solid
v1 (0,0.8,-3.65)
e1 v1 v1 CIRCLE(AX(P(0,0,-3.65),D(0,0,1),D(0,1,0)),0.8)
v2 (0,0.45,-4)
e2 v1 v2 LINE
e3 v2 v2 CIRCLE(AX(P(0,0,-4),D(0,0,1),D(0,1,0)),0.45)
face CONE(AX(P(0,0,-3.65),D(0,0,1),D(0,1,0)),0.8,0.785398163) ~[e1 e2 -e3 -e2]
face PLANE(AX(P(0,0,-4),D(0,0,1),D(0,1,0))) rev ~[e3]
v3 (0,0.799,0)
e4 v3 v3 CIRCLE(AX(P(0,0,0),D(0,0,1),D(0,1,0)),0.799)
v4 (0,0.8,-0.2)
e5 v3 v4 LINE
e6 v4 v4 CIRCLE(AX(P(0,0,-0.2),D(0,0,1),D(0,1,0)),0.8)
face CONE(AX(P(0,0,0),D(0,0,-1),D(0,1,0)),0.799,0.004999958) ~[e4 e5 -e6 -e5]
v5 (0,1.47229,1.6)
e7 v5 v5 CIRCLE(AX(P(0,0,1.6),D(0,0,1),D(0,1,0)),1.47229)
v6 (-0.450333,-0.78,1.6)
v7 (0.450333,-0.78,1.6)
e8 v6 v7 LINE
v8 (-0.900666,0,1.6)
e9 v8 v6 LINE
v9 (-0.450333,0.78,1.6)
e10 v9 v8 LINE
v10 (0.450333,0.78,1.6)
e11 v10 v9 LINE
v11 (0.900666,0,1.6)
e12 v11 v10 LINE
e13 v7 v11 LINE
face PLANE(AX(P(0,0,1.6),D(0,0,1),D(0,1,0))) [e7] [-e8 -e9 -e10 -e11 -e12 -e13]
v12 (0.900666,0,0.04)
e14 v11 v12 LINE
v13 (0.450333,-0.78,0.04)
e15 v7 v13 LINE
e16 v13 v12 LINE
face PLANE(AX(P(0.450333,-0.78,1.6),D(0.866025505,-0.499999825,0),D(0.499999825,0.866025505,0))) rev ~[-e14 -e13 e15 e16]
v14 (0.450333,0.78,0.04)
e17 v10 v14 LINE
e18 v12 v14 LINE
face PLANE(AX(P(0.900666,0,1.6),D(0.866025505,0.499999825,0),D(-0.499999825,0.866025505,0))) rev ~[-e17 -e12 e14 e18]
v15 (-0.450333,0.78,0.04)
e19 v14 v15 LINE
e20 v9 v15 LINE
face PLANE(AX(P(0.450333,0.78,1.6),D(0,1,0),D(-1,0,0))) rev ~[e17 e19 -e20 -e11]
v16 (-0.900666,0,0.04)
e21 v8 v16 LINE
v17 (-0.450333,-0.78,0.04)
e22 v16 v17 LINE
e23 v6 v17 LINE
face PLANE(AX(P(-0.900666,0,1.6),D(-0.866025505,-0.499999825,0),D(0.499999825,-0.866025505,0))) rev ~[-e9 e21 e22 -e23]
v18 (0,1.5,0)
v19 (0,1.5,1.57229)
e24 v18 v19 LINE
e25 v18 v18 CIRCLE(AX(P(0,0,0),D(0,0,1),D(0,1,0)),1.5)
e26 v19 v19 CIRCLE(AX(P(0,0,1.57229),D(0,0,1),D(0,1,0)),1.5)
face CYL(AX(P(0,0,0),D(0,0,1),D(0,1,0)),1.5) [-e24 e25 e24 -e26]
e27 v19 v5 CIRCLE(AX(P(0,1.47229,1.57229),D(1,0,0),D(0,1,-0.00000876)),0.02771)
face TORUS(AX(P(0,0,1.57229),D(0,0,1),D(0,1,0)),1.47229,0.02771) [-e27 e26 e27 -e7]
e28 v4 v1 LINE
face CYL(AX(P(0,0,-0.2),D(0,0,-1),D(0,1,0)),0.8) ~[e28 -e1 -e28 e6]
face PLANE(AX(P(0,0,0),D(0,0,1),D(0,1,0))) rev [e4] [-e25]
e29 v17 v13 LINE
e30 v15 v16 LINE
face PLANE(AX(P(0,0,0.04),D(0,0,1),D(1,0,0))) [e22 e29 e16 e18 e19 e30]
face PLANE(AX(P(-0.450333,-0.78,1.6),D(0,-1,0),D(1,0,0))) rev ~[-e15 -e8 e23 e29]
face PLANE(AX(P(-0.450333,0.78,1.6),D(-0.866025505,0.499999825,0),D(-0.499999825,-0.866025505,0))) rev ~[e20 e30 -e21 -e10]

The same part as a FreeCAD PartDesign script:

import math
import FreeCAD as App
import Part
import Sketcher
Q = App.Units.Quantity

doc = App.newDocument("Part")
body = doc.addObject("PartDesign::Body", "Body")

sketch1 = body.newObject("Sketcher::SketchObject", "Sketch")
sketch1.AttachmentSupport = (doc.getObject("YZ_Plane"), [""])
sketch1.MapMode = "FlatFace"
sketch1.addGeometry(Part.LineSegment(App.Vector(0.799, 0, 0), App.Vector(1.5, 0, 0)), False)
sketch1.addGeometry(Part.LineSegment(App.Vector(1.5, 0, 0), App.Vector(1.5, 1.57229, 0)), False)
sketch1.addGeometry(Part.ArcOfCircle(Part.Circle(App.Vector(1.47229, 1.57229, 0), App.Vector(0, 0, 1), 0.02771), math.radians(-0.000502), math.radians(90.000502)), False)
sketch1.addGeometry(Part.LineSegment(App.Vector(1.47229, 1.6, 0), App.Vector(0, 1.6, 0)), False)
sketch1.addGeometry(Part.LineSegment(App.Vector(0, 1.6, 0), App.Vector(0, -4, 0)), False)
sketch1.addGeometry(Part.LineSegment(App.Vector(0, -4, 0), App.Vector(0.45, -4, 0)), False)
sketch1.addGeometry(Part.LineSegment(App.Vector(0.45, -4, 0), App.Vector(0.8, -3.65, 0)), False)
sketch1.addGeometry(Part.LineSegment(App.Vector(0.8, -3.65, 0), App.Vector(0.8, -0.2, 0)), False)
sketch1.addGeometry(Part.LineSegment(App.Vector(0.8, -0.2, 0), App.Vector(0.799, 0, 0)), False)
sketch1.addConstraint(Sketcher.Constraint("Coincident", 0, 2, 1, 1))
sketch1.addConstraint(Sketcher.Constraint("Coincident", 1, 2, 2, 1))
sketch1.addConstraint(Sketcher.Constraint("Coincident", 2, 2, 3, 1))
sketch1.addConstraint(Sketcher.Constraint("Coincident", 3, 2, 4, 1))
sketch1.addConstraint(Sketcher.Constraint("Coincident", 4, 2, 5, 1))
sketch1.addConstraint(Sketcher.Constraint("Coincident", 5, 2, 6, 1))
sketch1.addConstraint(Sketcher.Constraint("Coincident", 6, 2, 7, 1))
sketch1.addConstraint(Sketcher.Constraint("Coincident", 7, 2, 8, 1))
sketch1.addConstraint(Sketcher.Constraint("Coincident", 8, 2, 0, 1))
sketch1.addConstraint(Sketcher.Constraint("Horizontal", 0))
sketch1.addConstraint(Sketcher.Constraint("Vertical", 1))
sketch1.addConstraint(Sketcher.Constraint("Horizontal", 3))
sketch1.addConstraint(Sketcher.Constraint("Vertical", 4))
sketch1.addConstraint(Sketcher.Constraint("Horizontal", 5))
sketch1.addConstraint(Sketcher.Constraint("Vertical", 7))
sketch1.addConstraint(Sketcher.Constraint("PointOnObject", 0, 2, -1))
sketch1.addConstraint(Sketcher.Constraint("PointOnObject", 3, 2, -2))
sketch1.addConstraint(Sketcher.Constraint("Horizontal", 2, 3, 1, 2))
sketch1.addConstraint(Sketcher.Constraint("Angle", 6, Q("45 deg")))
sketch1.addConstraint(Sketcher.Constraint("DistanceY", 4, 2, 4, 1, 5.6))
sketch1.addConstraint(Sketcher.Constraint("DistanceY", 4, 2, -1, 1, 4.0))
sketch1.addConstraint(Sketcher.Constraint("DistanceX", 5, 1, 5, 2, 0.45))
sketch1.addConstraint(Sketcher.Constraint("DistanceY", 7, 1, 7, 2, 3.45))
sketch1.addConstraint(Sketcher.Constraint("DistanceX", -1, 1, 0, 2, 1.5))
sketch1.addConstraint(Sketcher.Constraint("DistanceX", -1, 1, 6, 2, 0.8))
sketch1.addConstraint(Sketcher.Constraint("DistanceX", 0, 1, 0, 2, 0.701))
sketch1.addConstraint(Sketcher.Constraint("Radius", 2, 0.02771))
sketch1.addConstraint(Sketcher.Constraint("DistanceX", 3, 2, 3, 1, 1.47229))
revolution = body.newObject("PartDesign::Revolution", "Revolution")
revolution.Profile = sketch1
revolution.ReferenceAxis = (sketch1, ["V_Axis"])
revolution.Angle = 360

sketch2 = body.newObject("Sketcher::SketchObject", "Sketch001")
sketch2.AttachmentSupport = (doc.getObject("XY_Plane"), [""])
sketch2.MapMode = "FlatFace"
sketch2.AttachmentOffset = App.Placement(App.Vector(0, 0, 1.6), App.Rotation())
sketch2.addGeometry(Part.LineSegment(App.Vector(0.900666, 0, 0), App.Vector(0.450333, 0.78, 0)), False)
sketch2.addGeometry(Part.LineSegment(App.Vector(0.450333, 0.78, 0), App.Vector(-0.450333, 0.78, 0)), False)
sketch2.addGeometry(Part.LineSegment(App.Vector(-0.450333, 0.78, 0), App.Vector(-0.900666, 0, 0)), False)
sketch2.addGeometry(Part.LineSegment(App.Vector(-0.900666, 0, 0), App.Vector(-0.450333, -0.78, 0)), False)
sketch2.addGeometry(Part.LineSegment(App.Vector(-0.450333, -0.78, 0), App.Vector(0.450333, -0.78, 0)), False)
sketch2.addGeometry(Part.LineSegment(App.Vector(0.450333, -0.78, 0), App.Vector(0.900666, 0, 0)), False)
sketch2.addConstraint(Sketcher.Constraint("Coincident", 0, 2, 1, 1))
sketch2.addConstraint(Sketcher.Constraint("Coincident", 1, 2, 2, 1))
sketch2.addConstraint(Sketcher.Constraint("Coincident", 2, 2, 3, 1))
sketch2.addConstraint(Sketcher.Constraint("Coincident", 3, 2, 4, 1))
sketch2.addConstraint(Sketcher.Constraint("Coincident", 4, 2, 5, 1))
sketch2.addConstraint(Sketcher.Constraint("Coincident", 5, 2, 0, 1))
sketch2.addConstraint(Sketcher.Constraint("Horizontal", 1))
sketch2.addConstraint(Sketcher.Constraint("Horizontal", 4))
sketch2.addConstraint(Sketcher.Constraint("Symmetric", 0, 2, 3, 2, -1, 1))
sketch2.addConstraint(Sketcher.Constraint("Symmetric", 2, 2, 5, 2, -1, 1))
sketch2.addConstraint(Sketcher.Constraint("PointOnObject", 2, 2, -1))
sketch2.addConstraint(Sketcher.Constraint("Parallel", 2, 5))
sketch2.addConstraint(Sketcher.Constraint("Vertical", 1, 2, 3, 2))
sketch2.addConstraint(Sketcher.Constraint("Angle", 0, Q("119.999988 deg")))
sketch2.addConstraint(Sketcher.Constraint("DistanceY", -1, 1, 0, 2, 0.78))
sketch2.addConstraint(Sketcher.Constraint("DistanceX", 2, 2, 0, 2, 1.350999))
pocket1 = body.newObject("PartDesign::Pocket", "Pocket")
pocket1.Profile = sketch2
pocket1.Length = 1.56

doc.recompute()
